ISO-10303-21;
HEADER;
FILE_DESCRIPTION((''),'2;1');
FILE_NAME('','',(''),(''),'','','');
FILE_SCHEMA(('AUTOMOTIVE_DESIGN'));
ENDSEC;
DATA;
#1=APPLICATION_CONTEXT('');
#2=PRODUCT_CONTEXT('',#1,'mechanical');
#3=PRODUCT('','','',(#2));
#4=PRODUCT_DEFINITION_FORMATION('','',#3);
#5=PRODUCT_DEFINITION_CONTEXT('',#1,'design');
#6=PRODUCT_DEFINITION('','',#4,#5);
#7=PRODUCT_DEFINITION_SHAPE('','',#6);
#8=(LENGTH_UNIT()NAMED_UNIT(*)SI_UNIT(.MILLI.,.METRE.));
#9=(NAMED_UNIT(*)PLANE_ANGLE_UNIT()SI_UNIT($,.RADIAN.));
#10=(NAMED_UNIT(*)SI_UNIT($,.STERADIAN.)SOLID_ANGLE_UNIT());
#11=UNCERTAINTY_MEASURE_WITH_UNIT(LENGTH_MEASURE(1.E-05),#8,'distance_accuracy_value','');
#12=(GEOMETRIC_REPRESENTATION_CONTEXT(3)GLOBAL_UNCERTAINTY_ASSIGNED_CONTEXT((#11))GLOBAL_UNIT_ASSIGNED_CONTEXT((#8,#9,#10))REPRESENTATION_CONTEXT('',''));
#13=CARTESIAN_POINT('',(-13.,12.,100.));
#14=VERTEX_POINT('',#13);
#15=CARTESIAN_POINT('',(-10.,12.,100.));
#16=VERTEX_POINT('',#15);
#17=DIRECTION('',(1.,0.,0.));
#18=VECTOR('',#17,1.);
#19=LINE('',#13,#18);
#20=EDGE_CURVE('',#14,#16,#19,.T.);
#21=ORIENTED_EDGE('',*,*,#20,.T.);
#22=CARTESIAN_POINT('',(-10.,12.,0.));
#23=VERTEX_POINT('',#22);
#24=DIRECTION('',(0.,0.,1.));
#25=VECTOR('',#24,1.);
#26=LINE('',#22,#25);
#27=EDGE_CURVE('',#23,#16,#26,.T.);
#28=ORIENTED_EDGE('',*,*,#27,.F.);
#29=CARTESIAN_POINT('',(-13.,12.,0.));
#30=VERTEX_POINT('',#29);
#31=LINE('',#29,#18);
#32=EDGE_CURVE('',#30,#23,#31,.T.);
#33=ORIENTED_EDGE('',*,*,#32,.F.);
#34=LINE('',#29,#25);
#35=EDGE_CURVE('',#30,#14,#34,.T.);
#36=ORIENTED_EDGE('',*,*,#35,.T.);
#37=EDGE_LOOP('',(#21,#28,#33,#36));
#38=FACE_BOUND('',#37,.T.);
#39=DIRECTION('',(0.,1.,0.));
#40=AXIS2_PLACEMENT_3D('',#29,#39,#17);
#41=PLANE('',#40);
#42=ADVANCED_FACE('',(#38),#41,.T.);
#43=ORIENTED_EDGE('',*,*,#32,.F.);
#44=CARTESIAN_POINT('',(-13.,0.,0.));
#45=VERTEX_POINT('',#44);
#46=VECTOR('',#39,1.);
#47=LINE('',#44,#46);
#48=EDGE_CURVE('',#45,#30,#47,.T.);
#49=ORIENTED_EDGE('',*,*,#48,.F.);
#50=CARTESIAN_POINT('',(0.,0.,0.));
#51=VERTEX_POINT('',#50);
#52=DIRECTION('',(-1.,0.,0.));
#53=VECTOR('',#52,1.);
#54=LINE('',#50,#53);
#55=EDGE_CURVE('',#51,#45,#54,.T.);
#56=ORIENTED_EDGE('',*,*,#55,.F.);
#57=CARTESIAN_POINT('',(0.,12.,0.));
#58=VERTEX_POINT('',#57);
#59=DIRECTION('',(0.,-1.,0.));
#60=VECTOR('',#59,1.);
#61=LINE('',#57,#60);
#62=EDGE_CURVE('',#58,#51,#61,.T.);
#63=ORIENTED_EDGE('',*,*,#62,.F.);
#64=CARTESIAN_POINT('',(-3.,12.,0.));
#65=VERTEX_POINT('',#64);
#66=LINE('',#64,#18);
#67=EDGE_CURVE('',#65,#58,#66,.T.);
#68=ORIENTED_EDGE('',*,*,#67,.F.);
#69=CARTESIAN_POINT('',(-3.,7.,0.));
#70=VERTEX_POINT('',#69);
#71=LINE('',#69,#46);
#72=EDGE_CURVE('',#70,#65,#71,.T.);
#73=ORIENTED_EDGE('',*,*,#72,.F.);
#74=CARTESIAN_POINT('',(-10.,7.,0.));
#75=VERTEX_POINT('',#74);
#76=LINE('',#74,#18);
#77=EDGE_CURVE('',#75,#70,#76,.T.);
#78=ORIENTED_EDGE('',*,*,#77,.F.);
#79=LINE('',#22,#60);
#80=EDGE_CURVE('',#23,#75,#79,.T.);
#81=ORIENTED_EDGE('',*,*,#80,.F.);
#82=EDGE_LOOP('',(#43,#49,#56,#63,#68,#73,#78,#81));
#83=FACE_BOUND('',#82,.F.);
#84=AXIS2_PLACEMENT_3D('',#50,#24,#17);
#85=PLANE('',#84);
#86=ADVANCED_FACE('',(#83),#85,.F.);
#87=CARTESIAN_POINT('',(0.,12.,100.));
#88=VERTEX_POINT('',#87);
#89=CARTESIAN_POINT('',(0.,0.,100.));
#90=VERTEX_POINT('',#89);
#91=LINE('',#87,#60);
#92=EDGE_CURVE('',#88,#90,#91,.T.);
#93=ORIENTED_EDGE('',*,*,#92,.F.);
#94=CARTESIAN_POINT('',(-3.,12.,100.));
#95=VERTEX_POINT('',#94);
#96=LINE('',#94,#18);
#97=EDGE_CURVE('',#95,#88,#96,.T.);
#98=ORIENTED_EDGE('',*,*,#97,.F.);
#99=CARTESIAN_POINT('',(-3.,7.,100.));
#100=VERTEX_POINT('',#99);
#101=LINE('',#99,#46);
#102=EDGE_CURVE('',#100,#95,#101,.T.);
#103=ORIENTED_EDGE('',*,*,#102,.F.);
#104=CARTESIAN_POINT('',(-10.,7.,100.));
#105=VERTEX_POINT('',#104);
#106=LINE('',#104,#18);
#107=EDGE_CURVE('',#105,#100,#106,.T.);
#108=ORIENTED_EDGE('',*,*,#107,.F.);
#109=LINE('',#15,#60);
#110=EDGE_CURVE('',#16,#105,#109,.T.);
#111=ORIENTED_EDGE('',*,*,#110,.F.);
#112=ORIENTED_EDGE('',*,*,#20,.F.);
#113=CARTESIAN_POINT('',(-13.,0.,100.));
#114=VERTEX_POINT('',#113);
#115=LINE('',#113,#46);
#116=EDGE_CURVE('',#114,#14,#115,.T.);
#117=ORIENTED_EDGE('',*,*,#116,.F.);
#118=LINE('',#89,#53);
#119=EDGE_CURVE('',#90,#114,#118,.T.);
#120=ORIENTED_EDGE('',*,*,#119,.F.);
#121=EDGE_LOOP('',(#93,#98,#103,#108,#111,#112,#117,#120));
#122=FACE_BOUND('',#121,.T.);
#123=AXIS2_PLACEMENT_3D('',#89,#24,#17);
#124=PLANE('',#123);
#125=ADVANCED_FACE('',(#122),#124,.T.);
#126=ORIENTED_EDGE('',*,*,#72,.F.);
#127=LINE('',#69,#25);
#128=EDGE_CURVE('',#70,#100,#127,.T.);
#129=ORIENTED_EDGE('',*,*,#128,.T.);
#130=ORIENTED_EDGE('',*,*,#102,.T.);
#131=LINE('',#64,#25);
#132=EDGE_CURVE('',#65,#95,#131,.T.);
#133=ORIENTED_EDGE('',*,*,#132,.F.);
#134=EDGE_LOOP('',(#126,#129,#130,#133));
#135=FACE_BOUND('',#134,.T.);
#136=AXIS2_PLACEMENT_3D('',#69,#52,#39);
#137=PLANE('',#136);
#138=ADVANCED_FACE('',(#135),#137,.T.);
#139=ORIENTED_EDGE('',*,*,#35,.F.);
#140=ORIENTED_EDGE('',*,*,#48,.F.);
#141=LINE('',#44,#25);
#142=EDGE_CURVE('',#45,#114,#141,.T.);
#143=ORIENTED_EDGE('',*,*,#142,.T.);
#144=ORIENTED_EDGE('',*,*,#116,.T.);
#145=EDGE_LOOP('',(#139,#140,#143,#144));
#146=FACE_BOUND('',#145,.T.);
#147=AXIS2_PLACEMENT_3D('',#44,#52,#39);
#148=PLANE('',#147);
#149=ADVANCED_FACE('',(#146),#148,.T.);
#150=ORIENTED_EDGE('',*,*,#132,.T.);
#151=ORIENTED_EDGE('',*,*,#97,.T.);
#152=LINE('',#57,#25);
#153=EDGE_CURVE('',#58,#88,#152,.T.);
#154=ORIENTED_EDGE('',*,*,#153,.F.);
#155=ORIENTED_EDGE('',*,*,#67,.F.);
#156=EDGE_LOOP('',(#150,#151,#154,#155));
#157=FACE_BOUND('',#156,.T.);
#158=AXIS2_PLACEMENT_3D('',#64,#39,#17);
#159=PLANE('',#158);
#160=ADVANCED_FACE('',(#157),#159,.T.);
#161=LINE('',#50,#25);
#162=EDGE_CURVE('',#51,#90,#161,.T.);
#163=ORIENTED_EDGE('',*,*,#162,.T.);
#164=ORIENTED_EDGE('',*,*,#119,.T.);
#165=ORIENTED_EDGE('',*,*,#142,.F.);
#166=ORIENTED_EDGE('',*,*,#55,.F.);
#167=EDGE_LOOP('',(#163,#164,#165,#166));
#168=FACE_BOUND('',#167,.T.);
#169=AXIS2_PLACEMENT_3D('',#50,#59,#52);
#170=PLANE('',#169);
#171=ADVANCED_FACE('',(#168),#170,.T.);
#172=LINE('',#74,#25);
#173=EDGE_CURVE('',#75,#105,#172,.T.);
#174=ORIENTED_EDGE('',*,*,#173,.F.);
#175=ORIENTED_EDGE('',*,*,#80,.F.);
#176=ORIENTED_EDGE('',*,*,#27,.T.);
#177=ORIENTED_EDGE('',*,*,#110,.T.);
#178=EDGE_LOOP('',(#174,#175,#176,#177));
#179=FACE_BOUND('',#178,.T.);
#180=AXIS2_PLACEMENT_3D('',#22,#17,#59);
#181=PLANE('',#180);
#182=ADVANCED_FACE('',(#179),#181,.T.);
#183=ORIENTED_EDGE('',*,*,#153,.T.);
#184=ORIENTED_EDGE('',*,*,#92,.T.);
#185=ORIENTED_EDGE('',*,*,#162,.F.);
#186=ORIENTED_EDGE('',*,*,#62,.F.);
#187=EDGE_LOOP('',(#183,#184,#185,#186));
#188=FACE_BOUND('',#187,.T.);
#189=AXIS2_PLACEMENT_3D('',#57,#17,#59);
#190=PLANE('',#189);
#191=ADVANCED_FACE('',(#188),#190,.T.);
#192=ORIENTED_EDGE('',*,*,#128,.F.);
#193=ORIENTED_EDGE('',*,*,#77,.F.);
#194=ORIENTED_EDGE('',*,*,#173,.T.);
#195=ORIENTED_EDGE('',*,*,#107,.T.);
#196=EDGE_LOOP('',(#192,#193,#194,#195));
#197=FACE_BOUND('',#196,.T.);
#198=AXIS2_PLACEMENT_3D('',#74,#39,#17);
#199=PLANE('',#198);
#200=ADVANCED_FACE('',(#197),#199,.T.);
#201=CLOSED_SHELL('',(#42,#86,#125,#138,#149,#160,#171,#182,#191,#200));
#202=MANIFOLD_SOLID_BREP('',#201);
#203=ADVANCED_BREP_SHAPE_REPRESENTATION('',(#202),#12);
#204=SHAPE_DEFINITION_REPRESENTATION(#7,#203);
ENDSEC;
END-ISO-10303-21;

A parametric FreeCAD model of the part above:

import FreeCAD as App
import Part
import Sketcher

V = App.Vector
Q = App.Units.Quantity

doc = App.newDocument("Part")
body = doc.addObject("PartDesign::Body", "Body")

# Sketch on XY plane
sketch1 = body.newObject("Sketcher::SketchObject", "Sketch")
sketch1.AttachmentSupport = (doc.getObject("XY_Plane"), [""])
sketch1.MapMode = "FlatFace"
sketch1.addGeometry(Part.LineSegment(V(-13, 0, 0), V(0, 0, 0)), False)
sketch1.addGeometry(Part.LineSegment(V(0, 0, 0), V(0, 12, 0)), False)
sketch1.addGeometry(Part.LineSegment(V(0, 12, 0), V(-3, 12, 0)), False)
sketch1.addGeometry(Part.LineSegment(V(-3, 12, 0), V(-3, 7, 0)), False)
sketch1.addGeometry(Part.LineSegment(V(-3, 7, 0), V(-10, 7, 0)), False)
sketch1.addGeometry(Part.LineSegment(V(-10, 7, 0), V(-10, 12, 0)), False)
sketch1.addGeometry(Part.LineSegment(V(-10, 12, 0), V(-13, 12, 0)), False)
sketch1.addGeometry(Part.LineSegment(V(-13, 12, 0), V(-13, 0, 0)), False)
sketch1.addConstraint(Sketcher.Constraint("Coincident", 0, 2, 1, 1))
sketch1.addConstraint(Sketcher.Constraint("Coincident", 1, 2, 2, 1))
sketch1.addConstraint(Sketcher.Constraint("Coincident", 2, 2, 3, 1))
sketch1.addConstraint(Sketcher.Constraint("Coincident", 3, 2, 4, 1))
sketch1.addConstraint(Sketcher.Constraint("Coincident", 4, 2, 5, 1))
sketch1.addConstraint(Sketcher.Constraint("Coincident", 5, 2, 6, 1))
sketch1.addConstraint(Sketcher.Constraint("Coincident", 6, 2, 7, 1))
sketch1.addConstraint(Sketcher.Constraint("Coincident", 7, 2, 0, 1))
sketch1.addConstraint(Sketcher.Constraint("Horizontal", 0))
sketch1.addConstraint(Sketcher.Constraint("Vertical", 1))
sketch1.addConstraint(Sketcher.Constraint("Horizontal", 2))
sketch1.addConstraint(Sketcher.Constraint("Vertical", 3))
sketch1.addConstraint(Sketcher.Constraint("Horizontal", 4))
sketch1.addConstraint(Sketcher.Constraint("Vertical", 5))
sketch1.addConstraint(Sketcher.Constraint("Horizontal", 6))
sketch1.addConstraint(Sketcher.Constraint("Vertical", 7))
sketch1.addConstraint(Sketcher.Constraint("Coincident", 0, 2, -1, 1))
sketch1.addConstraint(Sketcher.Constraint("Horizontal", 2, 2, 5, 2))
sketch1.addConstraint(Sketcher.Constraint("Equal", 2, 6))
sketch1.addConstraint(Sketcher.Constraint("DistanceX", 0, 1, 0, 2, Q("13 mm")))
sketch1.addConstraint(Sketcher.Constraint("DistanceX", 2, 2, 2, 1, Q("3 mm")))
sketch1.addConstraint(Sketcher.Constraint("DistanceY", 1, 1, 1, 2, Q("12 mm")))
sketch1.addConstraint(Sketcher.Constraint("DistanceY", 3, 2, 3, 1, Q("5 mm")))
pad1 = body.newObject("PartDesign::Pad", "Pad")
pad1.Profile = sketch1
pad1.Length = 100

doc.recompute()
